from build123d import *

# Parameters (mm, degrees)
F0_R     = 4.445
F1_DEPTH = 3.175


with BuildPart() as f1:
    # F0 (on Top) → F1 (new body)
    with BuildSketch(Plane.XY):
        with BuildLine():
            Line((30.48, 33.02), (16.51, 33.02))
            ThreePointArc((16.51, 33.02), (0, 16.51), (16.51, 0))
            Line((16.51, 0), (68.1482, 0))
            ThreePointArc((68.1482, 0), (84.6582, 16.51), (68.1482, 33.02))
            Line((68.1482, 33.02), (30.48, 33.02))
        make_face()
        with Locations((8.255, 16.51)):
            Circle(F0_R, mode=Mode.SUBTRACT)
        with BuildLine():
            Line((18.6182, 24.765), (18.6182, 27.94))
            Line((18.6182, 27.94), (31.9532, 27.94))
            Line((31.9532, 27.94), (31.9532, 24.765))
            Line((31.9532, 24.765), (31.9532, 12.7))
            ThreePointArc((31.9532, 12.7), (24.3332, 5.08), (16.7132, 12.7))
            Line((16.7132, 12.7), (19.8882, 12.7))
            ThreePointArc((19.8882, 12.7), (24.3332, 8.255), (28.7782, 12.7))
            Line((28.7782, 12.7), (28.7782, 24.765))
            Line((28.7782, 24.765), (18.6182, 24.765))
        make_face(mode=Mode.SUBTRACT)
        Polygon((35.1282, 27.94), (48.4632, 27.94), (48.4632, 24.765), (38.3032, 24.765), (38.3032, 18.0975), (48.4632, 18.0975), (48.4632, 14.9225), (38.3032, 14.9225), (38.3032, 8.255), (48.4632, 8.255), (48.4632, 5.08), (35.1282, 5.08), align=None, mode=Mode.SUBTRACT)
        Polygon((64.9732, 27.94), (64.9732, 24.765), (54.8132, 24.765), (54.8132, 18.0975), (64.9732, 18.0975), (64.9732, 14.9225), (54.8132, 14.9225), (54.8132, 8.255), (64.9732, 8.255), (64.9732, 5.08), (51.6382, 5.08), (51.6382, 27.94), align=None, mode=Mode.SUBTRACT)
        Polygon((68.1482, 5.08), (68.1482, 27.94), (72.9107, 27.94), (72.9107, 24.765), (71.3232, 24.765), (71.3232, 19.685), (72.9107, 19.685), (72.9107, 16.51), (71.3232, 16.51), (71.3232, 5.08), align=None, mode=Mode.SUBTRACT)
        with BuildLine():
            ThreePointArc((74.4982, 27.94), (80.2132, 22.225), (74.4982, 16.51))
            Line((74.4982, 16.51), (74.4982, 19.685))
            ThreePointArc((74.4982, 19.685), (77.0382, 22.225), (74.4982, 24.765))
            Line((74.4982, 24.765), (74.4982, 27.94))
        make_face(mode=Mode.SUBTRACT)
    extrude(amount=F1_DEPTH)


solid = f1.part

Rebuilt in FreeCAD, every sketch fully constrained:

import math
import FreeCAD as App
import Part
import Sketcher
from FreeCAD import Vector
Q = App.Units.Quantity

doc = App.newDocument("Part")
body = doc.addObject("PartDesign::Body", "Body")

# Sketch on XY plane
sketch1 = body.newObject("Sketcher::SketchObject", "Sketch")
sketch1.AttachmentSupport = (doc.getObject("XY_Plane"), [""])
sketch1.MapMode = "FlatFace"
sketch1.addGeometry(Part.ArcOfCircle(Part.Circle(Vector(16.5, 16.5, 0), Vector(0, 0, 1), 16.5), math.radians(90), math.radians(270)), False)
sketch1.addGeometry(Part.LineSegment(Vector(16.5, 0, 0), Vector(68.1, 0, 0)), False)
sketch1.addGeometry(Part.ArcOfCircle(Part.Circle(Vector(68.1, 16.5, 0), Vector(0, 0, 1), 16.5), math.radians(-90), math.radians(90)), False)
sketch1.addGeometry(Part.LineSegment(Vector(68.1, 33, 0), Vector(16.5, 33, 0)), False)
sketch1.addGeometry(Part.Circle(Vector(8.3, 16.5, 0), Vector(0, 0, 1), 4.4), False)
sketch1.addGeometry(Part.LineSegment(Vector(28.8, 24.8, 0), Vector(18.6, 24.8, 0)), False)
sketch1.addGeometry(Part.LineSegment(Vector(18.6, 24.8, 0), Vector(18.6, 27.9, 0)), False)
sketch1.addGeometry(Part.LineSegment(Vector(18.6, 27.9, 0), Vector(32, 27.9, 0)), False)
sketch1.addGeometry(Part.LineSegment(Vector(32, 27.9, 0), Vector(32, 12.7, 0)), False)
sketch1.addGeometry(Part.ArcOfCircle(Part.Circle(Vector(24.3, 12.7, 0), Vector(0, 0, 1), 7.6), math.radians(180), math.radians(360)), False)
sketch1.addGeometry(Part.LineSegment(Vector(16.7, 12.7, 0), Vector(19.9, 12.7, 0)), False)
sketch1.addGeometry(Part.ArcOfCircle(Part.Circle(Vector(24.3, 12.7, 0), Vector(0, 0, 1), 4.4), math.radians(180), math.radians(360)), False)
sketch1.addGeometry(Part.LineSegment(Vector(28.8, 12.7, 0), Vector(28.8, 24.8, 0)), False)
sketch1.addGeometry(Part.LineSegment(Vector(35.1, 5.1, 0), Vector(35.1, 27.9, 0)), False)
sketch1.addGeometry(Part.LineSegment(Vector(35.1, 27.9, 0), Vector(48.5, 27.9, 0)), False)
sketch1.addGeometry(Part.LineSegment(Vector(48.5, 27.9, 0), Vector(48.5, 24.8, 0)), False)
sketch1.addGeometry(Part.LineSegment(Vector(48.5, 24.8, 0), Vector(38.3, 24.8, 0)), False)
sketch1.addGeometry(Part.LineSegment(Vector(38.3, 24.8, 0), Vector(38.3, 18.1, 0)), False)
sketch1.addGeometry(Part.LineSegment(Vector(38.3, 18.1, 0), Vector(48.5, 18.1, 0)), False)
sketch1.addGeometry(Part.LineSegment(Vector(48.5, 18.1, 0), Vector(48.5, 14.9, 0)), False)
sketch1.addGeometry(Part.LineSegment(Vector(48.5, 14.9, 0), Vector(38.3, 14.9, 0)), False)
sketch1.addGeometry(Part.LineSegment(Vector(38.3, 14.9, 0), Vector(38.3, 8.3, 0)), False)
sketch1.addGeometry(Part.LineSegment(Vector(38.3, 8.3, 0), Vector(48.5, 8.3, 0)), False)
sketch1.addGeometry(Part.LineSegment(Vector(48.5, 8.3, 0), Vector(48.5, 5.1, 0)), False)
sketch1.addGeometry(Part.LineSegment(Vector(48.5, 5.1, 0), Vector(35.1, 5.1, 0)), False)
sketch1.addGeometry(Part.LineSegment(Vector(51.6, 27.9, 0), Vector(65, 27.9, 0)), False)
sketch1.addGeometry(Part.LineSegment(Vector(65, 27.9, 0), Vector(65, 24.8, 0)), False)
sketch1.addGeometry(Part.LineSegment(Vector(65, 24.8, 0), Vector(54.8, 24.8, 0)), False)
sketch1.addGeometry(Part.LineSegment(Vector(54.8, 24.8, 0), Vector(54.8, 18.1, 0)), False)
sketch1.addGeometry(Part.LineSegment(Vector(54.8, 18.1, 0), Vector(65, 18.1, 0)), False)
sketch1.addGeometry(Part.LineSegment(Vector(65, 18.1, 0), Vector(65, 14.9, 0)), False)
sketch1.addGeometry(Part.LineSegment(Vector(65, 14.9, 0), Vector(54.8, 14.9, 0)), False)
sketch1.addGeometry(Part.LineSegment(Vector(54.8, 14.9, 0), Vector(54.8, 8.3, 0)), False)
sketch1.addGeometry(Part.LineSegment(Vector(54.8, 8.3, 0), Vector(65, 8.3, 0)), False)
sketch1.addGeometry(Part.LineSegment(Vector(65, 8.3, 0), Vector(65, 5.1, 0)), False)
sketch1.addGeometry(Part.LineSegment(Vector(65, 5.1, 0), Vector(51.6, 5.1, 0)), False)
sketch1.addGeometry(Part.LineSegment(Vector(51.6, 5.1, 0), Vector(51.6, 27.9, 0)), False)
sketch1.addGeometry(Part.LineSegment(Vector(71.3, 5.1, 0), Vector(68.1, 5.1, 0)), False)
sketch1.addGeometry(Part.LineSegment(Vector(68.1, 5.1, 0), Vector(68.1, 27.9, 0)), False)
sketch1.addGeometry(Part.LineSegment(Vector(68.1, 27.9, 0), Vector(72.9, 27.9, 0)), False)
sketch1.addGeometry(Part.LineSegment(Vector(72.9, 27.9, 0), Vector(72.9, 24.8, 0)), False)
sketch1.addGeometry(Part.LineSegment(Vector(72.9, 24.8, 0), Vector(71.3, 24.8, 0)), False)
sketch1.addGeometry(Part.LineSegment(Vector(71.3, 24.8, 0), Vector(71.3, 19.7, 0)), False)
sketch1.addGeometry(Part.LineSegment(Vector(71.3, 19.7, 0), Vector(72.9, 19.7, 0)), False)
sketch1.addGeometry(Part.LineSegment(Vector(72.9, 19.7, 0), Vector(72.9, 16.5, 0)), False)
sketch1.addGeometry(Part.LineSegment(Vector(72.9, 16.5, 0), Vector(71.3, 16.5, 0)), False)
sketch1.addGeometry(Part.LineSegment(Vector(71.3, 16.5, 0), Vector(71.3, 5.1, 0)), False)
sketch1.addGeometry(Part.LineSegment(Vector(74.5, 24.8, 0), Vector(74.5, 27.9, 0)), False)
sketch1.addGeometry(Part.ArcOfCircle(Part.Circle(Vector(74.5, 22.2, 0), Vector(0, 0, 1), 5.7), math.radians(-90), math.radians(90)), False)
sketch1.addGeometry(Part.LineSegment(Vector(74.5, 16.5, 0), Vector(74.5, 19.7, 0)), False)
sketch1.addGeometry(Part.ArcOfCircle(Part.Circle(Vector(74.5, 22.2, 0), Vector(0, 0, 1), 2.5), math.radians(-90), math.radians(90)), False)
sketch1.addConstraint(Sketcher.Constraint("Tangent", 0, 2, 1, 1))
sketch1.addConstraint(Sketcher.Constraint("Tangent", 1, 2, 2, 1))
sketch1.addConstraint(Sketcher.Constraint("Tangent", 2, 2, 3, 1))
sketch1.addConstraint(Sketcher.Constraint("Tangent", 3, 2, 0, 1))
sketch1.addConstraint(Sketcher.Constraint("Coincident", 5, 2, 6, 1))
sketch1.addConstraint(Sketcher.Constraint("Coincident", 6, 2, 7, 1))
sketch1.addConstraint(Sketcher.Constraint("Coincident", 7, 2, 8, 1))
sketch1.addConstraint(Sketcher.Constraint("Tangent", 8, 2, 9, 2))
sketch1.addConstraint(Sketcher.Constraint("Coincident", 9, 1, 10, 1))
sketch1.addConstraint(Sketcher.Constraint("Coincident", 10, 2, 11, 1))
sketch1.addConstraint(Sketcher.Constraint("Tangent", 11, 2, 12, 1))
sketch1.addConstraint(Sketcher.Constraint("Coincident", 12, 2, 5, 1))
sketch1.addConstraint(Sketcher.Constraint("Coincident", 13, 2, 14, 1))
sketch1.addConstraint(Sketcher.Constraint("Coincident", 14, 2, 15, 1))
sketch1.addConstraint(Sketcher.Constraint("Coincident", 15, 2, 16, 1))
sketch1.addConstraint(Sketcher.Constraint("Coincident", 16, 2, 17, 1))
sketch1.addConstraint(Sketcher.Constraint("Coincident", 17, 2, 18, 1))
sketch1.addConstraint(Sketcher.Constraint("Coincident", 18, 2, 19, 1))
sketch1.addConstraint(Sketcher.Constraint("Coincident", 19, 2, 20, 1))
sketch1.addConstraint(Sketcher.Constraint("Coincident", 20, 2, 21, 1))
sketch1.addConstraint(Sketcher.Constraint("Coincident", 21, 2, 22, 1))
sketch1.addConstraint(Sketcher.Constraint("Coincident", 22, 2, 23, 1))
sketch1.addConstraint(Sketcher.Constraint("Coincident", 23, 2, 24, 1))
sketch1.addConstraint(Sketcher.Constraint("Coincident", 24, 2, 13, 1))
sketch1.addConstraint(Sketcher.Constraint("Coincident", 25, 2, 26, 1))
sketch1.addConstraint(Sketcher.Constraint("Coincident", 26, 2, 27, 1))
sketch1.addConstraint(Sketcher.Constraint("Coincident", 27, 2, 28, 1))
sketch1.addConstraint(Sketcher.Constraint("Coincident", 28, 2, 29, 1))
sketch1.addConstraint(Sketcher.Constraint("Coincident", 29, 2, 30, 1))
sketch1.addConstraint(Sketcher.Constraint("Coincident", 30, 2, 31, 1))
sketch1.addConstraint(Sketcher.Constraint("Coincident", 31, 2, 32, 1))
sketch1.addConstraint(Sketcher.Constraint("Coincident", 32, 2, 33, 1))
sketch1.addConstraint(Sketcher.Constraint("Coincident", 33, 2, 34, 1))
sketch1.addConstraint(Sketcher.Constraint("Coincident", 34, 2, 35, 1))
sketch1.addConstraint(Sketcher.Constraint("Coincident", 35, 2, 36, 1))
sketch1.addConstraint(Sketcher.Constraint("Coincident", 36, 2, 25, 1))
sketch1.addConstraint(Sketcher.Constraint("Coincident", 37, 2, 38, 1))
sketch1.addConstraint(Sketcher.Constraint("Coincident", 38, 2, 39, 1))
sketch1.addConstraint(Sketcher.Constraint("Coincident", 39, 2, 40, 1))
sketch1.addConstraint(Sketcher.Constraint("Coincident", 40, 2, 41, 1))
sketch1.addConstraint(Sketcher.Constraint("Coincident", 41, 2, 42, 1))
sketch1.addConstraint(Sketcher.Constraint("Coincident", 42, 2, 43, 1))
sketch1.addConstraint(Sketcher.Constraint("Coincident", 43, 2, 44, 1))
sketch1.addConstraint(Sketcher.Constraint("Coincident", 44, 2, 45, 1))
sketch1.addConstraint(Sketcher.Constraint("Coincident", 45, 2, 46, 1))
sketch1.addConstraint(Sketcher.Constraint("Coincident", 46, 2, 37, 1))
sketch1.addConstraint(Sketcher.Constraint("Coincident", 47, 2, 48, 2))
sketch1.addConstraint(Sketcher.Constraint("Coincident", 48, 1, 49, 1))
sketch1.addConstraint(Sketcher.Constraint("Coincident", 49, 2, 50, 1))
sketch1.addConstraint(Sketcher.Constraint("Coincident", 50, 2, 47, 1))
sketch1.addConstraint(Sketcher.Constraint("Horizontal", 1))
sketch1.addConstraint(Sketcher.Constraint("Horizontal", 3))
sketch1.addConstraint(Sketcher.Constraint("Horizontal", 5))
sketch1.addConstraint(Sketcher.Constraint("Vertical", 6))
sketch1.addConstraint(Sketcher.Constraint("Horizontal", 7))
sketch1.addConstraint(Sketcher.Constraint("Vertical", 8))
sketch1.addConstraint(Sketcher.Constraint("Horizontal", 10))
sketch1.addConstraint(Sketcher.Constraint("Vertical", 12))
sketch1.addConstraint(Sketcher.Constraint("Vertical", 13))
sketch1.addConstraint(Sketcher.Constraint("Horizontal", 14))
sketch1.addConstraint(Sketcher.Constraint("Vertical", 15))
sketch1.addConstraint(Sketcher.Constraint("Horizontal", 16))
sketch1.addConstraint(Sketcher.Constraint("Vertical", 17))
sketch1.addConstraint(Sketcher.Constraint("Horizontal", 18))
sketch1.addConstraint(Sketcher.Constraint("Vertical", 19))
sketch1.addConstraint(Sketcher.Constraint("Horizontal", 20))
sketch1.addConstraint(Sketcher.Constraint("Vertical", 21))
sketch1.addConstraint(Sketcher.Constraint("Horizontal", 22))
sketch1.addConstraint(Sketcher.Constraint("Vertical", 23))
sketch1.addConstraint(Sketcher.Constraint("Horizontal", 24))
sketch1.addConstraint(Sketcher.Constraint("Horizontal", 25))
sketch1.addConstraint(Sketcher.Constraint("Vertical", 26))
sketch1.addConstraint(Sketcher.Constraint("Horizontal", 27))
sketch1.addConstraint(Sketcher.Constraint("Vertical", 28))
sketch1.addConstraint(Sketcher.Constraint("Horizontal", 29))
sketch1.addConstraint(Sketcher.Constraint("Vertical", 30))
sketch1.addConstraint(Sketcher.Constraint("Horizontal", 31))
sketch1.addConstraint(Sketcher.Constraint("Vertical", 32))
sketch1.addConstraint(Sketcher.Constraint("Horizontal", 33))
sketch1.addConstraint(Sketcher.Constraint("Vertical", 34))
sketch1.addConstraint(Sketcher.Constraint("Horizontal", 35))
sketch1.addConstraint(Sketcher.Constraint("Vertical", 36))
sketch1.addConstraint(Sketcher.Constraint("Horizontal", 37))
sketch1.addConstraint(Sketcher.Constraint("Vertical", 38))
sketch1.addConstraint(Sketcher.Constraint("Horizontal", 39))
sketch1.addConstraint(Sketcher.Constraint("Vertical", 40))
sketch1.addConstraint(Sketcher.Constraint("Horizontal", 41))
sketch1.addConstraint(Sketcher.Constraint("Vertical", 42))
sketch1.addConstraint(Sketcher.Constraint("Horizontal", 43))
sketch1.addConstraint(Sketcher.Constraint("Vertical", 44))
sketch1.addConstraint(Sketcher.Constraint("Horizontal", 45))
sketch1.addConstraint(Sketcher.Constraint("Vertical", 46))
sketch1.addConstraint(Sketcher.Constraint("Vertical", 47))
sketch1.addConstraint(Sketcher.Constraint("Vertical", 49))
sketch1.addConstraint(Sketcher.Constraint("Coincident", 11, 3, 9, 3))
sketch1.addConstraint(Sketcher.Constraint("Coincident", 50, 3, 48, 3))
sketch1.addConstraint(Sketcher.Constraint("Equal", 4, 11))
sketch1.addConstraint(Sketcher.Constraint("PointOnObject", 0, 2, -1))
sketch1.addConstraint(Sketcher.Constraint("Horizontal", 2, 3, 4, 3))
sketch1.addConstraint(Sketcher.Constraint("Horizontal", 8, 2, 9, 1))
sketch1.addConstraint(Sketcher.Constraint("Horizontal", 7, 2, 13, 2))
sketch1.addConstraint(Sketcher.Constraint("Horizontal", 12, 2, 15, 2))
sketch1.addConstraint(Sketcher.Constraint("Horizontal", 14, 2, 25, 2))
sketch1.addConstraint(Sketcher.Constraint("Horizontal", 16, 2, 26, 2))
sketch1.addConstraint(Sketcher.Constraint("Horizontal", 18, 2, 28, 2))
sketch1.addConstraint(Sketcher.Constraint("Horizontal", 20, 2, 30, 2))
sketch1.addConstraint(Sketcher.Constraint("Horizontal", 22, 2, 32, 2))
sketch1.addConstraint(Sketcher.Constraint("Horizontal", 24, 2, 34, 2))
sketch1.addConstraint(Sketcher.Constraint("Horizontal", 35, 2, 37, 2))
sketch1.addConstraint(Sketcher.Constraint("Horizontal", 36, 2, 38, 2))
sketch1.addConstraint(Sketcher.Constraint("Horizontal", 27, 2, 40, 2))
sketch1.addConstraint(Sketcher.Constraint("Horizontal", 4, 3, 44, 2))
sketch1.addConstraint(Sketcher.Constraint("Horizontal", 39, 2, 47, 2))
sketch1.addConstraint(Sketcher.Constraint("Horizontal", 45, 2, 48, 1))
sketch1.addConstraint(Sketcher.Constraint("Horizontal", 43, 2, 49, 2))
sketch1.addConstraint(Sketcher.Constraint("Horizontal", 41, 2, 50, 2))
sketch1.addConstraint(Sketcher.Constraint("Vertical", 15, 2, 18, 2))
sketch1.addConstraint(Sketcher.Constraint("Vertical", 17, 2, 20, 2))
sketch1.addConstraint(Sketcher.Constraint("Vertical", 19, 2, 22, 2))
sketch1.addConstraint(Sketcher.Constraint("Vertical", 26, 2, 29, 2))
sketch1.addConstraint(Sketcher.Constraint("Vertical", 28, 2, 31, 2))
sketch1.addConstraint(Sketcher.Constraint("Vertical", 30, 2, 33, 2))
sketch1.addConstraint(Sketcher.Constraint("Vertical", 2, 2, 37, 2))
sketch1.addConstraint(Sketcher.Constraint("Vertical", 40, 2, 43, 2))
sketch1.addConstraint(Sketcher.Constraint("Vertical", 42, 2, 45, 2))
sketch1.addConstraint(Sketcher.Constraint("Vertical", 50, 3, 47, 2))
sketch1.addConstraint(Sketcher.Constraint("Vertical", 47, 2, 48, 1))
sketch1.addConstraint(Sketcher.Constraint("Equal", 7, 14))
sketch1.addConstraint(Sketcher.Constraint("Equal", 5, 16))
sketch1.addConstraint(Sketcher.Constraint("Equal", 24, 25))
sketch1.addConstraint(Sketcher.Constraint("Equal", 22, 27))
sketch1.addConstraint(Sketcher.Constraint("Equal", 10, 37))
sketch1.addConstraint(Sketcher.Constraint("Equal", 37, 6))
sketch1.addConstraint(Sketcher.Constraint("Equal", 15, 19))
sketch1.addConstraint(Sketcher.Constraint("Equal", 17, 21))
sketch1.addConstraint(Sketcher.Constraint("Equal", 19, 23))
sketch1.addConstraint(Sketcher.Constraint("Radius", 9, Q("0.3 in")))
sketch1.addConstraint(Sketcher.Constraint("Radius", 50, Q("0.1 in")))
sketch1.addConstraint(Sketcher.Constraint("Diameter", 4, Q("0.35 in")))
sketch1.addConstraint(Sketcher.Constraint("Radius", 0, Q("0.65 in")))
sketch1.addConstraint(Sketcher.Constraint("DistanceX", 5, 2, 5, 1, Q("0.4 in")))
sketch1.addConstraint(Sketcher.Constraint("DistanceY", 8, 2, 8, 1, Q("0.6 in")))
sketch1.addConstraint(Sketcher.Constraint("DistanceY", 13, 1, 13, 2, Q("0.9 in")))
sketch1.addConstraint(Sketcher.Constraint("DistanceX", 1, 1, 1, 2, Q("2.033 in")))
sketch1.addConstraint(Sketcher.Constraint("DistanceX", 39, 1, 39, 2, Q("0.1875 in")))
sketch1.addConstraint(Sketcher.Constraint("DistanceX", -1, 1, 0, 3, Q("0.65 in")))
sketch1.addConstraint(Sketcher.Constraint("DistanceX", 2, 3, 48, 3, Q("0.25 in")))
sketch1.addConstraint(Sketcher.Constraint("DistanceX", 12, 2, 13, 2, Q("0.25 in")))
sketch1.addConstraint(Sketcher.Constraint("DistanceX", 14, 2, 25, 2, Q("0.65 in")))
sketch1.addConstraint(Sketcher.Constraint("DistanceX", 34, 2, 46, 2, Q("0.25 in")))
sketch1.addConstraint(Sketcher.Constraint("DistanceX", -1, 1, 4, 3, Q("0.325 in")))
pad1 = body.newObject("PartDesign::Pad", "Pad")
pad1.Profile = sketch1
pad1.Length = Q("0.125 in")

doc.recompute()
